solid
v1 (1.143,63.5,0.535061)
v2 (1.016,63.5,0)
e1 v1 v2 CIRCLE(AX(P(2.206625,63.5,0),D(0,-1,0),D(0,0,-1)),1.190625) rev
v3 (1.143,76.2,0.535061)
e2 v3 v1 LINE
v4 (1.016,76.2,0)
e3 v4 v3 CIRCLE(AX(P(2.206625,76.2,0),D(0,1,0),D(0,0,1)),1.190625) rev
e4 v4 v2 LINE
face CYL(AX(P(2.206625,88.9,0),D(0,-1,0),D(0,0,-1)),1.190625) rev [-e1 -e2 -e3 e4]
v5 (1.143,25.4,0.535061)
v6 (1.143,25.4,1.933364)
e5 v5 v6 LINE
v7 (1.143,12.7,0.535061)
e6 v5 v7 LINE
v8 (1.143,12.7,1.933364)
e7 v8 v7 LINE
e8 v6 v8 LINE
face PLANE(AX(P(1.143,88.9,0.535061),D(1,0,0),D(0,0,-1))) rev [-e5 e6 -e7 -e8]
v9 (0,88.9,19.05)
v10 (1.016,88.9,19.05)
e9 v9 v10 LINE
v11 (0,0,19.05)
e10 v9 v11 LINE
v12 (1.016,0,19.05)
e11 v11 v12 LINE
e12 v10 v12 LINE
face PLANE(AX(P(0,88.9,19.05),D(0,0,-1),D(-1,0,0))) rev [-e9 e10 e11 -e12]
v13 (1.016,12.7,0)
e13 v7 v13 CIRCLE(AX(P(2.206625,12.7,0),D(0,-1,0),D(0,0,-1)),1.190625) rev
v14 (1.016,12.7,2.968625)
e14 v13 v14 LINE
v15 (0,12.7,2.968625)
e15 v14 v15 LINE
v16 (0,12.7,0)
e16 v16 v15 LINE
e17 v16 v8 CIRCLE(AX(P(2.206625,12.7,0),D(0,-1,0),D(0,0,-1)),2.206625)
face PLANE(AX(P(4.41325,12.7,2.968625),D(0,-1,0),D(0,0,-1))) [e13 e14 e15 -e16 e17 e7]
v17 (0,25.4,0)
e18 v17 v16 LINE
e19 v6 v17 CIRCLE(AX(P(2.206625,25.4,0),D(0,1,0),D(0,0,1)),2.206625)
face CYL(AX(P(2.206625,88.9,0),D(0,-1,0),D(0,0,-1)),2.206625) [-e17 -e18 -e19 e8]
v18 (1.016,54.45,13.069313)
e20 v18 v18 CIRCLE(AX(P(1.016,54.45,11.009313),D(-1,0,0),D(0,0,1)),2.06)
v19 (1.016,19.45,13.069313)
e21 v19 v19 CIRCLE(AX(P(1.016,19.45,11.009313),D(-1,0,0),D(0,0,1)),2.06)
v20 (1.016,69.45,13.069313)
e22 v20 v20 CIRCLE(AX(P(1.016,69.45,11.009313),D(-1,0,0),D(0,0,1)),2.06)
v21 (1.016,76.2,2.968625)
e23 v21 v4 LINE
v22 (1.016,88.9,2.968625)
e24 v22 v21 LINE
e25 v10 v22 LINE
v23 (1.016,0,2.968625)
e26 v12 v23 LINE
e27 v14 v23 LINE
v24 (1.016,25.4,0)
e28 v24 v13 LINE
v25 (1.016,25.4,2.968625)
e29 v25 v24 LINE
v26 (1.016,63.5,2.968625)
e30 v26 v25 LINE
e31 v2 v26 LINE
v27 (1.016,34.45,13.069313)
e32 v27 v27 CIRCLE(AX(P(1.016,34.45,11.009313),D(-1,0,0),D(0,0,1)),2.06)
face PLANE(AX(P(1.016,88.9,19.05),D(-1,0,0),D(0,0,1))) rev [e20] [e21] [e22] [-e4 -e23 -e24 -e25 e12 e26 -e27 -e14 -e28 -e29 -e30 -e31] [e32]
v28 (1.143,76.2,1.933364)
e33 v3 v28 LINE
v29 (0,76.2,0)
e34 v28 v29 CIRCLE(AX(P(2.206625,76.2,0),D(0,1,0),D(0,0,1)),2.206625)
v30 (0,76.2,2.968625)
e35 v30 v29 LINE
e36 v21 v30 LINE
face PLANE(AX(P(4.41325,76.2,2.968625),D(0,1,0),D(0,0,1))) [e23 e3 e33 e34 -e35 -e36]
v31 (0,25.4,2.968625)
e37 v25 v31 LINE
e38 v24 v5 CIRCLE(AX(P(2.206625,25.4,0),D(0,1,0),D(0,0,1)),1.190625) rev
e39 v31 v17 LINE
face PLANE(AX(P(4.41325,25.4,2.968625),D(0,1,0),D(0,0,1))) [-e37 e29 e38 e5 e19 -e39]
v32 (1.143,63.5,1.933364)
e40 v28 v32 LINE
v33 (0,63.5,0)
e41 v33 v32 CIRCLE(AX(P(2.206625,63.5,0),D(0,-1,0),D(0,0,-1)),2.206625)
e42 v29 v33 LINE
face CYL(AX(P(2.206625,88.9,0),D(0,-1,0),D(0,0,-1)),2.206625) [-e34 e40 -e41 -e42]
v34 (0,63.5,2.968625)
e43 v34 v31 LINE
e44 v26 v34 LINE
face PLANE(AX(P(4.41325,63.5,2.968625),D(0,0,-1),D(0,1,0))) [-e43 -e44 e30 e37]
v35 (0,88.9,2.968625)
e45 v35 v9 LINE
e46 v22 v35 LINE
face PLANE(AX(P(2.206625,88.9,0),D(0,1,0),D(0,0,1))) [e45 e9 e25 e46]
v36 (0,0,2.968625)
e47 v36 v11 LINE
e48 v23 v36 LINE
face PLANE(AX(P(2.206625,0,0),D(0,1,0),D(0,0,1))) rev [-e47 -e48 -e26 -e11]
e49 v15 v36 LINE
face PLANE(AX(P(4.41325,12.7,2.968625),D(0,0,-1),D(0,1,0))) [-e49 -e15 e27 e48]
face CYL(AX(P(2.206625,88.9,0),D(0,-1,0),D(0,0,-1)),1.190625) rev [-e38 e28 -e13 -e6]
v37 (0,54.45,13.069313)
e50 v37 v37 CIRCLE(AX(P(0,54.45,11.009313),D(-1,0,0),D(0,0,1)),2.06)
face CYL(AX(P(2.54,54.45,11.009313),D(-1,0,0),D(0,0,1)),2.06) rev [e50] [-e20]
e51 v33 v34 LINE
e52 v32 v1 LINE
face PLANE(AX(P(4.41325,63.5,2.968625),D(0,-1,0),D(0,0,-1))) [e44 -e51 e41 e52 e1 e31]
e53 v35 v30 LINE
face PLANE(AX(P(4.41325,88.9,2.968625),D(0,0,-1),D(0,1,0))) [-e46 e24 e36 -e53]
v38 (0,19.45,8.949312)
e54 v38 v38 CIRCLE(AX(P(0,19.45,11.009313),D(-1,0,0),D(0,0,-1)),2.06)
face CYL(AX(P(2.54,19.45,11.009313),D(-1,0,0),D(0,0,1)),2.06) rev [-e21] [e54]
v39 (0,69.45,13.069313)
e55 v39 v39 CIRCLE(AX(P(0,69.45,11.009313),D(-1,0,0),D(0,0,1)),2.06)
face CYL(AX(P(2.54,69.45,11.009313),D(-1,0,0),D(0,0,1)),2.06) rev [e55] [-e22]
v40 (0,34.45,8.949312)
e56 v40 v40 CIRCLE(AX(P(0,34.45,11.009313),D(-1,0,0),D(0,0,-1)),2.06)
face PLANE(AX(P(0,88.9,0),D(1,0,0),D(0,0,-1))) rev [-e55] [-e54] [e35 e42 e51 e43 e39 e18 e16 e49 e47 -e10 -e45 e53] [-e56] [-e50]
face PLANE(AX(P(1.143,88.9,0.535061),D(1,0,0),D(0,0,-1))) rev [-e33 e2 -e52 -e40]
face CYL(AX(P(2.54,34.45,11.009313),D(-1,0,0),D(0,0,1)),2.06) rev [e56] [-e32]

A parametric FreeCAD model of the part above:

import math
import FreeCAD as App
import Part
import Sketcher
Q = App.Units.Quantity


def add_polygon(sketch, points):
    """Adds a closed chain of lines whose ends are joined by coincident constraints."""
    first, n = sketch.GeometryCount, len(points)
    for a, b in zip(points, points[1:] + points[:1]):
        sketch.addGeometry(Part.LineSegment(App.Vector(*a, 0), App.Vector(*b, 0)), False)
    for i in range(n):
        sketch.addConstraint(Sketcher.Constraint("Coincident", first + i, 2, first + (i + 1) % n, 1))

doc = App.newDocument("Part")
body = doc.addObject("PartDesign::Body", "Body")

# Sketch on XZ plane
sketch1 = body.newObject("Sketcher::SketchObject", "Sketch")
sketch1.AttachmentSupport = (doc.getObject("XZ_Plane"), [""])
sketch1.MapMode = "FlatFace"
sketch1.addGeometry([
    Part.LineSegment(App.Vector(0, 0, 0), App.Vector(0, 19.1, 0)),  # 0
    Part.LineSegment(App.Vector(0, 19.1, 0), App.Vector(1, 19.1, 0)),  # 1
    Part.LineSegment(App.Vector(1, 19.1, 0), App.Vector(1, 0, 0)),  # 2
    Part.ArcOfCircle(Part.Circle(App.Vector(2.2, 0, 0), App.Vector(0, 0, 1), 1.2), math.radians(180), math.radians(513)),  # 3
    Part.LineSegment(App.Vector(1.1, 0.5, 0), App.Vector(1.1, 1.9, 0)),  # 4
    Part.ArcOfCircle(Part.Circle(App.Vector(2.2, 0, 0), App.Vector(0, 0, 1), 2.2), math.radians(180), math.radians(479)),  # 5
], False)
sketch1.addConstraint([
    Sketcher.Constraint("Coincident", 0, 2, 1, 1),
    Sketcher.Constraint("Coincident", 1, 2, 2, 1),
    Sketcher.Constraint("Tangent", 2, 2, 3, 1),
    Sketcher.Constraint("Coincident", 3, 2, 4, 1),
    Sketcher.Constraint("Coincident", 4, 2, 5, 2),
    Sketcher.Constraint("Tangent", 5, 1, 0, 1),
    Sketcher.Constraint("Vertical", 0),
    Sketcher.Constraint("Horizontal", 1),
    Sketcher.Constraint("Vertical", 2),
    Sketcher.Constraint("Vertical", 4),
    Sketcher.Constraint("Coincident", 5, 1, -1, 1),
    Sketcher.Constraint("Coincident", 5, 3, 3, 3),
    Sketcher.Constraint("Radius", 3, Q("0.046875 in")),
    Sketcher.Constraint("DistanceX", 1, 1, 1, 2, Q("0.04 in")),
    Sketcher.Constraint("DistanceY", 0, 1, 0, 2, Q("0.75 in")),
    Sketcher.Constraint("DistanceX", -1, 1, 3, 2, Q("0.045 in")),
])
pad1 = body.newObject("PartDesign::Pad", "Pad")
pad1.Profile = sketch1
pad1.Length = Q("3.5 in")
pad1.Reversed = True

# Sketch on YZ plane
sketch2 = body.newObject("Sketcher::SketchObject", "Sketch001")
sketch2.AttachmentSupport = (doc.getObject("YZ_Plane"), [""])
sketch2.MapMode = "FlatFace"
add_polygon(sketch2, [(13, 3), (0, 3), (0, -3), (13, -3)])  # lines 0-3
add_polygon(sketch2, [(38, 3), (25, 3), (25, -3), (38, -3)])  # lines 4-7
add_polygon(sketch2, [(64, 3), (51, 3), (51, -3), (64, -3)])  # lines 8-11
add_polygon(sketch2, [(89, 3), (76, 3), (76, -3), (89, -3)])  # lines 12-15
sketch2.addConstraint([
    Sketcher.Constraint("Horizontal", 0),
    Sketcher.Constraint("Vertical", 1),
    Sketcher.Constraint("Horizontal", 2),
    Sketcher.Constraint("Vertical", 3),
    Sketcher.Constraint("Horizontal", 4),
    Sketcher.Constraint("Vertical", 5),
    Sketcher.Constraint("Horizontal", 6),
    Sketcher.Constraint("Vertical", 7),
    Sketcher.Constraint("Horizontal", 8),
    Sketcher.Constraint("Vertical", 9),
    Sketcher.Constraint("Horizontal", 10),
    Sketcher.Constraint("Vertical", 11),
    Sketcher.Constraint("Horizontal", 12),
    Sketcher.Constraint("Vertical", 13),
    Sketcher.Constraint("Horizontal", 14),
    Sketcher.Constraint("Vertical", 15),
    Sketcher.Constraint("Symmetric", 0, 2, 1, 2, -1, 1),
    Sketcher.Constraint("Horizontal", 3, 2, 4, 2),
    Sketcher.Constraint("Horizontal", 2, 2, 5, 2),
    Sketcher.Constraint("Horizontal", 7, 2, 8, 2),
    Sketcher.Constraint("Horizontal", 6, 2, 9, 2),
    Sketcher.Constraint("Horizontal", 11, 2, 12, 2),
    Sketcher.Constraint("Horizontal", 10, 2, 13, 2),
    Sketcher.Constraint("Equal", 2, 4),
    Sketcher.Constraint("Equal", 6, 8),
    Sketcher.Constraint("Equal", 10, 12),
    Sketcher.Constraint("DistanceX", 0, 2, 0, 1, Q("0.5 in")),
    Sketcher.Constraint("DistanceX", -1, 1, 4, 2, Q("1 in")),
    Sketcher.Constraint("DistanceX", -1, 1, 8, 2, Q("2 in")),
    Sketcher.Constraint("DistanceX", -1, 1, 12, 2, Q("3 in")),
    Sketcher.Constraint("DistanceY", 1, 2, 1, 1, Q("5.93725 mm")),
])
pocket1 = body.newObject("PartDesign::Pocket", "Pocket")
pocket1.Profile = sketch2
pocket1.Type = "ThroughAll"
pocket1.Reversed = True

# Sketch on YZ plane
sketch3 = body.newObject("Sketcher::SketchObject", "Sketch002")
sketch3.AttachmentSupport = (doc.getObject("YZ_Plane"), [""])
sketch3.MapMode = "FlatFace"
add_polygon(sketch3, [(51, 3), (38, 3), (38, -3), (51, -3)])  # lines 0-3
sketch3.addConstraint([
    Sketcher.Constraint("Horizontal", 0),
    Sketcher.Constraint("Vertical", 1),
    Sketcher.Constraint("Horizontal", 2),
    Sketcher.Constraint("Vertical", 3),
    Sketcher.Constraint("DistanceX", 0, 2, 0, 1, Q("0.5 in")),
    Sketcher.Constraint("DistanceX", -1, 1, 2, 2, Q("2 in")),
    Sketcher.Constraint("DistanceY", 1, 2, 1, 1, Q("5.93725 mm")),
    Sketcher.Constraint("DistanceY", -1, 1, 0, 2, Q("2.968625 mm")),
])
pocket2 = body.newObject("PartDesign::Pocket", "Pocket001")
pocket2.Profile = sketch3
pocket2.Type = "ThroughAll"
pocket2.Reversed = True

# Sketch on YZ plane
sketch4 = body.newObject("Sketcher::SketchObject", "Sketch003")
sketch4.AttachmentSupport = (doc.getObject("YZ_Plane"), [""])
sketch4.MapMode = "FlatFace"
sketch4.addGeometry([
    Part.Circle(App.Vector(54.5, 11, 0), App.Vector(0, 0, 1), 2.1),
    Part.Circle(App.Vector(69.4, 11, 0), App.Vector(0, 0, 1), 2.1),
    Part.Circle(App.Vector(34.5, 11, 0), App.Vector(0, 0, 1), 2.1),
    Part.Circle(App.Vector(19.5, 11, 0), App.Vector(0, 0, 1), 2.1),
], False)
sketch4.addConstraint([
    Sketcher.Constraint("Equal", 0, 1),
    Sketcher.Constraint("Equal", 1, 2),
    Sketcher.Constraint("Equal", 2, 3),
    Sketcher.Constraint("Horizontal", 0, 3, 1, 3),
    Sketcher.Constraint("Horizontal", 1, 3, 2, 3),
    Sketcher.Constraint("Horizontal", 2, 3, 3, 3),
    Sketcher.Constraint("Diameter", 0, Q("4.12 mm")),
    Sketcher.Constraint("DistanceX", -1, 1, 0, 3, Q("54.45 mm")),
    Sketcher.Constraint("DistanceX", -1, 1, 1, 3, Q("69.45 mm")),
    Sketcher.Constraint("DistanceX", -1, 1, 2, 3, Q("34.45 mm")),
    Sketcher.Constraint("DistanceX", -1, 1, 3, 3, Q("19.45 mm")),
    Sketcher.Constraint("DistanceY", -1, 1, 0, 3, Q("11.009313 mm")),
])
pocket3 = body.newObject("PartDesign::Pocket", "Pocket002")
pocket3.Profile = sketch4
pocket3.Length = Q("0.1 in")
pocket3.Reversed = True

doc.recompute()
